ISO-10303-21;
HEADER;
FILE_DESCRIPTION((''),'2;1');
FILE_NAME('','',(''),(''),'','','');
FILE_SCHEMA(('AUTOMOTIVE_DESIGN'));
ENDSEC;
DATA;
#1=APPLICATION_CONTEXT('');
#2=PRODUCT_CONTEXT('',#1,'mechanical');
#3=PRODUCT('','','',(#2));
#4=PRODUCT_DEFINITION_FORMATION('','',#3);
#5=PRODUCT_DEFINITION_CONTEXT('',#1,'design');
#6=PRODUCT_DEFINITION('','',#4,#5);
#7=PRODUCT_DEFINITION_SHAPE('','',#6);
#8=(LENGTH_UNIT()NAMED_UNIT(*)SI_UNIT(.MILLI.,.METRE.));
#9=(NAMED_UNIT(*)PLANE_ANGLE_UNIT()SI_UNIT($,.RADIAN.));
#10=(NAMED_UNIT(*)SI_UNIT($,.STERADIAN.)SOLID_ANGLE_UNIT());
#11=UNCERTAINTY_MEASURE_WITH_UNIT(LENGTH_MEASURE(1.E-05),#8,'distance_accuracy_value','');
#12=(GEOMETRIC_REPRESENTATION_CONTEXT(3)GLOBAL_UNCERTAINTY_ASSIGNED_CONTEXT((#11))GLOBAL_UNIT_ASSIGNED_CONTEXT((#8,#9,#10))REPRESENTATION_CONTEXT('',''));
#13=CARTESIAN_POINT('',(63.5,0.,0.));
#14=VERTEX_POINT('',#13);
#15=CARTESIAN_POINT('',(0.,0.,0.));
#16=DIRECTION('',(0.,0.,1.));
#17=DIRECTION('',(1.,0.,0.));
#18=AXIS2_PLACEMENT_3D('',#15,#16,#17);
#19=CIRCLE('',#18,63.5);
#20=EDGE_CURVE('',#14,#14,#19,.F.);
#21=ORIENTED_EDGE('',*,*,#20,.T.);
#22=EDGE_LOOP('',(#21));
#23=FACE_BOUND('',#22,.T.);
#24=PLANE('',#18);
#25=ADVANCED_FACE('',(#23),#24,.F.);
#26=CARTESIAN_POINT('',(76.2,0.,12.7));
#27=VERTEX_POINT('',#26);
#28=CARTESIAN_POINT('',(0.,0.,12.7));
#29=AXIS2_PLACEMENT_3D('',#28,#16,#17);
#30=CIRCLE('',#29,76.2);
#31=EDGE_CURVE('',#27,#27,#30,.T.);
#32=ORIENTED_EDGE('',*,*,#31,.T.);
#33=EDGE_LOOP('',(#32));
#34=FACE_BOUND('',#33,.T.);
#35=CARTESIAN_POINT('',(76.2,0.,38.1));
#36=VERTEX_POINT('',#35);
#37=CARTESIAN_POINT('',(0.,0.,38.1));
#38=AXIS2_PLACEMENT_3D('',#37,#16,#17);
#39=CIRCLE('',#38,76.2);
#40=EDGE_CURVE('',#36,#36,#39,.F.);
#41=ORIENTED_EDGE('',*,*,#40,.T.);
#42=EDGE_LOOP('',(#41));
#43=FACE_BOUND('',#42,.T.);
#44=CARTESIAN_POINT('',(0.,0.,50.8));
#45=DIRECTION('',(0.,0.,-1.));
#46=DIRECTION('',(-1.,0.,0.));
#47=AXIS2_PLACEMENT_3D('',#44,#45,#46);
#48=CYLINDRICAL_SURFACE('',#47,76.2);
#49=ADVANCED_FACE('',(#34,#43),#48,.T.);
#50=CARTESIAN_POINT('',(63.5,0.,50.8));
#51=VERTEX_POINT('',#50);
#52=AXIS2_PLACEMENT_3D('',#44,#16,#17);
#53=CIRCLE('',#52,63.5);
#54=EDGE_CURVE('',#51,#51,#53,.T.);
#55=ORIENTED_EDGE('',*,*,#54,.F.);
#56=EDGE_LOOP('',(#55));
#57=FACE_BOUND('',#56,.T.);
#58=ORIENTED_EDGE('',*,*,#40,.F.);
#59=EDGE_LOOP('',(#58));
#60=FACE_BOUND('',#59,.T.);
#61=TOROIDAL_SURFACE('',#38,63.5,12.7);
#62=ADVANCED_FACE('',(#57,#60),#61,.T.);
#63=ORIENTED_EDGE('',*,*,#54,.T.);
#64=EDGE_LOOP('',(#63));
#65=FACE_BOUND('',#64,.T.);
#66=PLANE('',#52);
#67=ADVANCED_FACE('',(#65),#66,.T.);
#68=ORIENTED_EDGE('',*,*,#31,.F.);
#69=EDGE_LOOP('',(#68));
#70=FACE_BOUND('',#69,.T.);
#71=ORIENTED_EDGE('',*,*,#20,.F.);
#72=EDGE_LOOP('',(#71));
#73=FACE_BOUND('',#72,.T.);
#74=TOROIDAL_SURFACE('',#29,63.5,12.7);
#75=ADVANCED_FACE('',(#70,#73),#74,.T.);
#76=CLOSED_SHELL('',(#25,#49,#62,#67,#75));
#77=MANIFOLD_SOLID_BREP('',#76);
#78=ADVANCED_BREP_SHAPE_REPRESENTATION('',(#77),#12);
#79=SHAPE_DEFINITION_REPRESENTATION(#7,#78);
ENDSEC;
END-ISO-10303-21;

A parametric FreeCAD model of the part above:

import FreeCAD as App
import Part
import Sketcher
from FreeCAD import Vector
Q = App.Units.Quantity


def edges_at(feature, points):
    """Names of the edges that pass closest to the given points."""
    edges = feature.Shape.Edges
    near = lambda p: min(range(len(edges)), key=lambda i: edges[i].distToShape(Part.Vertex(*p))[0])
    return sorted({f"Edge{near(p) + 1}" for p in points})

doc = App.newDocument("Part")
body = doc.addObject("PartDesign::Body", "Body")

sketch1 = doc.addObject("Sketcher::SketchObject", "Sketch")
body.addObject(sketch1)
sketch1.AttachmentSupport = (doc.XY_Plane, [""])
sketch1.MapMode = "FlatFace"
sketch1.addGeometry(Part.Circle(Vector(0, 0, 0), Vector(0, 0, 1), 76), False)
sketch1.addConstraint([
    Sketcher.Constraint("Coincident", 0, 3, -1, 1),
    Sketcher.Constraint("Diameter", 0, Q("6 in")),
])
pad1 = doc.addObject("PartDesign::Pad", "Pad")
body.addObject(pad1)
pad1.Profile = sketch1
pad1.Length = Q("2 in")
doc.recompute()

fillet = doc.addObject("PartDesign::Fillet", "Fillet")
body.addObject(fillet)
fillet.Base = (pad1, edges_at(pad1, [(-76.2, 0, 0), (-76.2, 0, 50.8)]))
fillet.Radius = Q("0.5 in")

doc.recompute()
